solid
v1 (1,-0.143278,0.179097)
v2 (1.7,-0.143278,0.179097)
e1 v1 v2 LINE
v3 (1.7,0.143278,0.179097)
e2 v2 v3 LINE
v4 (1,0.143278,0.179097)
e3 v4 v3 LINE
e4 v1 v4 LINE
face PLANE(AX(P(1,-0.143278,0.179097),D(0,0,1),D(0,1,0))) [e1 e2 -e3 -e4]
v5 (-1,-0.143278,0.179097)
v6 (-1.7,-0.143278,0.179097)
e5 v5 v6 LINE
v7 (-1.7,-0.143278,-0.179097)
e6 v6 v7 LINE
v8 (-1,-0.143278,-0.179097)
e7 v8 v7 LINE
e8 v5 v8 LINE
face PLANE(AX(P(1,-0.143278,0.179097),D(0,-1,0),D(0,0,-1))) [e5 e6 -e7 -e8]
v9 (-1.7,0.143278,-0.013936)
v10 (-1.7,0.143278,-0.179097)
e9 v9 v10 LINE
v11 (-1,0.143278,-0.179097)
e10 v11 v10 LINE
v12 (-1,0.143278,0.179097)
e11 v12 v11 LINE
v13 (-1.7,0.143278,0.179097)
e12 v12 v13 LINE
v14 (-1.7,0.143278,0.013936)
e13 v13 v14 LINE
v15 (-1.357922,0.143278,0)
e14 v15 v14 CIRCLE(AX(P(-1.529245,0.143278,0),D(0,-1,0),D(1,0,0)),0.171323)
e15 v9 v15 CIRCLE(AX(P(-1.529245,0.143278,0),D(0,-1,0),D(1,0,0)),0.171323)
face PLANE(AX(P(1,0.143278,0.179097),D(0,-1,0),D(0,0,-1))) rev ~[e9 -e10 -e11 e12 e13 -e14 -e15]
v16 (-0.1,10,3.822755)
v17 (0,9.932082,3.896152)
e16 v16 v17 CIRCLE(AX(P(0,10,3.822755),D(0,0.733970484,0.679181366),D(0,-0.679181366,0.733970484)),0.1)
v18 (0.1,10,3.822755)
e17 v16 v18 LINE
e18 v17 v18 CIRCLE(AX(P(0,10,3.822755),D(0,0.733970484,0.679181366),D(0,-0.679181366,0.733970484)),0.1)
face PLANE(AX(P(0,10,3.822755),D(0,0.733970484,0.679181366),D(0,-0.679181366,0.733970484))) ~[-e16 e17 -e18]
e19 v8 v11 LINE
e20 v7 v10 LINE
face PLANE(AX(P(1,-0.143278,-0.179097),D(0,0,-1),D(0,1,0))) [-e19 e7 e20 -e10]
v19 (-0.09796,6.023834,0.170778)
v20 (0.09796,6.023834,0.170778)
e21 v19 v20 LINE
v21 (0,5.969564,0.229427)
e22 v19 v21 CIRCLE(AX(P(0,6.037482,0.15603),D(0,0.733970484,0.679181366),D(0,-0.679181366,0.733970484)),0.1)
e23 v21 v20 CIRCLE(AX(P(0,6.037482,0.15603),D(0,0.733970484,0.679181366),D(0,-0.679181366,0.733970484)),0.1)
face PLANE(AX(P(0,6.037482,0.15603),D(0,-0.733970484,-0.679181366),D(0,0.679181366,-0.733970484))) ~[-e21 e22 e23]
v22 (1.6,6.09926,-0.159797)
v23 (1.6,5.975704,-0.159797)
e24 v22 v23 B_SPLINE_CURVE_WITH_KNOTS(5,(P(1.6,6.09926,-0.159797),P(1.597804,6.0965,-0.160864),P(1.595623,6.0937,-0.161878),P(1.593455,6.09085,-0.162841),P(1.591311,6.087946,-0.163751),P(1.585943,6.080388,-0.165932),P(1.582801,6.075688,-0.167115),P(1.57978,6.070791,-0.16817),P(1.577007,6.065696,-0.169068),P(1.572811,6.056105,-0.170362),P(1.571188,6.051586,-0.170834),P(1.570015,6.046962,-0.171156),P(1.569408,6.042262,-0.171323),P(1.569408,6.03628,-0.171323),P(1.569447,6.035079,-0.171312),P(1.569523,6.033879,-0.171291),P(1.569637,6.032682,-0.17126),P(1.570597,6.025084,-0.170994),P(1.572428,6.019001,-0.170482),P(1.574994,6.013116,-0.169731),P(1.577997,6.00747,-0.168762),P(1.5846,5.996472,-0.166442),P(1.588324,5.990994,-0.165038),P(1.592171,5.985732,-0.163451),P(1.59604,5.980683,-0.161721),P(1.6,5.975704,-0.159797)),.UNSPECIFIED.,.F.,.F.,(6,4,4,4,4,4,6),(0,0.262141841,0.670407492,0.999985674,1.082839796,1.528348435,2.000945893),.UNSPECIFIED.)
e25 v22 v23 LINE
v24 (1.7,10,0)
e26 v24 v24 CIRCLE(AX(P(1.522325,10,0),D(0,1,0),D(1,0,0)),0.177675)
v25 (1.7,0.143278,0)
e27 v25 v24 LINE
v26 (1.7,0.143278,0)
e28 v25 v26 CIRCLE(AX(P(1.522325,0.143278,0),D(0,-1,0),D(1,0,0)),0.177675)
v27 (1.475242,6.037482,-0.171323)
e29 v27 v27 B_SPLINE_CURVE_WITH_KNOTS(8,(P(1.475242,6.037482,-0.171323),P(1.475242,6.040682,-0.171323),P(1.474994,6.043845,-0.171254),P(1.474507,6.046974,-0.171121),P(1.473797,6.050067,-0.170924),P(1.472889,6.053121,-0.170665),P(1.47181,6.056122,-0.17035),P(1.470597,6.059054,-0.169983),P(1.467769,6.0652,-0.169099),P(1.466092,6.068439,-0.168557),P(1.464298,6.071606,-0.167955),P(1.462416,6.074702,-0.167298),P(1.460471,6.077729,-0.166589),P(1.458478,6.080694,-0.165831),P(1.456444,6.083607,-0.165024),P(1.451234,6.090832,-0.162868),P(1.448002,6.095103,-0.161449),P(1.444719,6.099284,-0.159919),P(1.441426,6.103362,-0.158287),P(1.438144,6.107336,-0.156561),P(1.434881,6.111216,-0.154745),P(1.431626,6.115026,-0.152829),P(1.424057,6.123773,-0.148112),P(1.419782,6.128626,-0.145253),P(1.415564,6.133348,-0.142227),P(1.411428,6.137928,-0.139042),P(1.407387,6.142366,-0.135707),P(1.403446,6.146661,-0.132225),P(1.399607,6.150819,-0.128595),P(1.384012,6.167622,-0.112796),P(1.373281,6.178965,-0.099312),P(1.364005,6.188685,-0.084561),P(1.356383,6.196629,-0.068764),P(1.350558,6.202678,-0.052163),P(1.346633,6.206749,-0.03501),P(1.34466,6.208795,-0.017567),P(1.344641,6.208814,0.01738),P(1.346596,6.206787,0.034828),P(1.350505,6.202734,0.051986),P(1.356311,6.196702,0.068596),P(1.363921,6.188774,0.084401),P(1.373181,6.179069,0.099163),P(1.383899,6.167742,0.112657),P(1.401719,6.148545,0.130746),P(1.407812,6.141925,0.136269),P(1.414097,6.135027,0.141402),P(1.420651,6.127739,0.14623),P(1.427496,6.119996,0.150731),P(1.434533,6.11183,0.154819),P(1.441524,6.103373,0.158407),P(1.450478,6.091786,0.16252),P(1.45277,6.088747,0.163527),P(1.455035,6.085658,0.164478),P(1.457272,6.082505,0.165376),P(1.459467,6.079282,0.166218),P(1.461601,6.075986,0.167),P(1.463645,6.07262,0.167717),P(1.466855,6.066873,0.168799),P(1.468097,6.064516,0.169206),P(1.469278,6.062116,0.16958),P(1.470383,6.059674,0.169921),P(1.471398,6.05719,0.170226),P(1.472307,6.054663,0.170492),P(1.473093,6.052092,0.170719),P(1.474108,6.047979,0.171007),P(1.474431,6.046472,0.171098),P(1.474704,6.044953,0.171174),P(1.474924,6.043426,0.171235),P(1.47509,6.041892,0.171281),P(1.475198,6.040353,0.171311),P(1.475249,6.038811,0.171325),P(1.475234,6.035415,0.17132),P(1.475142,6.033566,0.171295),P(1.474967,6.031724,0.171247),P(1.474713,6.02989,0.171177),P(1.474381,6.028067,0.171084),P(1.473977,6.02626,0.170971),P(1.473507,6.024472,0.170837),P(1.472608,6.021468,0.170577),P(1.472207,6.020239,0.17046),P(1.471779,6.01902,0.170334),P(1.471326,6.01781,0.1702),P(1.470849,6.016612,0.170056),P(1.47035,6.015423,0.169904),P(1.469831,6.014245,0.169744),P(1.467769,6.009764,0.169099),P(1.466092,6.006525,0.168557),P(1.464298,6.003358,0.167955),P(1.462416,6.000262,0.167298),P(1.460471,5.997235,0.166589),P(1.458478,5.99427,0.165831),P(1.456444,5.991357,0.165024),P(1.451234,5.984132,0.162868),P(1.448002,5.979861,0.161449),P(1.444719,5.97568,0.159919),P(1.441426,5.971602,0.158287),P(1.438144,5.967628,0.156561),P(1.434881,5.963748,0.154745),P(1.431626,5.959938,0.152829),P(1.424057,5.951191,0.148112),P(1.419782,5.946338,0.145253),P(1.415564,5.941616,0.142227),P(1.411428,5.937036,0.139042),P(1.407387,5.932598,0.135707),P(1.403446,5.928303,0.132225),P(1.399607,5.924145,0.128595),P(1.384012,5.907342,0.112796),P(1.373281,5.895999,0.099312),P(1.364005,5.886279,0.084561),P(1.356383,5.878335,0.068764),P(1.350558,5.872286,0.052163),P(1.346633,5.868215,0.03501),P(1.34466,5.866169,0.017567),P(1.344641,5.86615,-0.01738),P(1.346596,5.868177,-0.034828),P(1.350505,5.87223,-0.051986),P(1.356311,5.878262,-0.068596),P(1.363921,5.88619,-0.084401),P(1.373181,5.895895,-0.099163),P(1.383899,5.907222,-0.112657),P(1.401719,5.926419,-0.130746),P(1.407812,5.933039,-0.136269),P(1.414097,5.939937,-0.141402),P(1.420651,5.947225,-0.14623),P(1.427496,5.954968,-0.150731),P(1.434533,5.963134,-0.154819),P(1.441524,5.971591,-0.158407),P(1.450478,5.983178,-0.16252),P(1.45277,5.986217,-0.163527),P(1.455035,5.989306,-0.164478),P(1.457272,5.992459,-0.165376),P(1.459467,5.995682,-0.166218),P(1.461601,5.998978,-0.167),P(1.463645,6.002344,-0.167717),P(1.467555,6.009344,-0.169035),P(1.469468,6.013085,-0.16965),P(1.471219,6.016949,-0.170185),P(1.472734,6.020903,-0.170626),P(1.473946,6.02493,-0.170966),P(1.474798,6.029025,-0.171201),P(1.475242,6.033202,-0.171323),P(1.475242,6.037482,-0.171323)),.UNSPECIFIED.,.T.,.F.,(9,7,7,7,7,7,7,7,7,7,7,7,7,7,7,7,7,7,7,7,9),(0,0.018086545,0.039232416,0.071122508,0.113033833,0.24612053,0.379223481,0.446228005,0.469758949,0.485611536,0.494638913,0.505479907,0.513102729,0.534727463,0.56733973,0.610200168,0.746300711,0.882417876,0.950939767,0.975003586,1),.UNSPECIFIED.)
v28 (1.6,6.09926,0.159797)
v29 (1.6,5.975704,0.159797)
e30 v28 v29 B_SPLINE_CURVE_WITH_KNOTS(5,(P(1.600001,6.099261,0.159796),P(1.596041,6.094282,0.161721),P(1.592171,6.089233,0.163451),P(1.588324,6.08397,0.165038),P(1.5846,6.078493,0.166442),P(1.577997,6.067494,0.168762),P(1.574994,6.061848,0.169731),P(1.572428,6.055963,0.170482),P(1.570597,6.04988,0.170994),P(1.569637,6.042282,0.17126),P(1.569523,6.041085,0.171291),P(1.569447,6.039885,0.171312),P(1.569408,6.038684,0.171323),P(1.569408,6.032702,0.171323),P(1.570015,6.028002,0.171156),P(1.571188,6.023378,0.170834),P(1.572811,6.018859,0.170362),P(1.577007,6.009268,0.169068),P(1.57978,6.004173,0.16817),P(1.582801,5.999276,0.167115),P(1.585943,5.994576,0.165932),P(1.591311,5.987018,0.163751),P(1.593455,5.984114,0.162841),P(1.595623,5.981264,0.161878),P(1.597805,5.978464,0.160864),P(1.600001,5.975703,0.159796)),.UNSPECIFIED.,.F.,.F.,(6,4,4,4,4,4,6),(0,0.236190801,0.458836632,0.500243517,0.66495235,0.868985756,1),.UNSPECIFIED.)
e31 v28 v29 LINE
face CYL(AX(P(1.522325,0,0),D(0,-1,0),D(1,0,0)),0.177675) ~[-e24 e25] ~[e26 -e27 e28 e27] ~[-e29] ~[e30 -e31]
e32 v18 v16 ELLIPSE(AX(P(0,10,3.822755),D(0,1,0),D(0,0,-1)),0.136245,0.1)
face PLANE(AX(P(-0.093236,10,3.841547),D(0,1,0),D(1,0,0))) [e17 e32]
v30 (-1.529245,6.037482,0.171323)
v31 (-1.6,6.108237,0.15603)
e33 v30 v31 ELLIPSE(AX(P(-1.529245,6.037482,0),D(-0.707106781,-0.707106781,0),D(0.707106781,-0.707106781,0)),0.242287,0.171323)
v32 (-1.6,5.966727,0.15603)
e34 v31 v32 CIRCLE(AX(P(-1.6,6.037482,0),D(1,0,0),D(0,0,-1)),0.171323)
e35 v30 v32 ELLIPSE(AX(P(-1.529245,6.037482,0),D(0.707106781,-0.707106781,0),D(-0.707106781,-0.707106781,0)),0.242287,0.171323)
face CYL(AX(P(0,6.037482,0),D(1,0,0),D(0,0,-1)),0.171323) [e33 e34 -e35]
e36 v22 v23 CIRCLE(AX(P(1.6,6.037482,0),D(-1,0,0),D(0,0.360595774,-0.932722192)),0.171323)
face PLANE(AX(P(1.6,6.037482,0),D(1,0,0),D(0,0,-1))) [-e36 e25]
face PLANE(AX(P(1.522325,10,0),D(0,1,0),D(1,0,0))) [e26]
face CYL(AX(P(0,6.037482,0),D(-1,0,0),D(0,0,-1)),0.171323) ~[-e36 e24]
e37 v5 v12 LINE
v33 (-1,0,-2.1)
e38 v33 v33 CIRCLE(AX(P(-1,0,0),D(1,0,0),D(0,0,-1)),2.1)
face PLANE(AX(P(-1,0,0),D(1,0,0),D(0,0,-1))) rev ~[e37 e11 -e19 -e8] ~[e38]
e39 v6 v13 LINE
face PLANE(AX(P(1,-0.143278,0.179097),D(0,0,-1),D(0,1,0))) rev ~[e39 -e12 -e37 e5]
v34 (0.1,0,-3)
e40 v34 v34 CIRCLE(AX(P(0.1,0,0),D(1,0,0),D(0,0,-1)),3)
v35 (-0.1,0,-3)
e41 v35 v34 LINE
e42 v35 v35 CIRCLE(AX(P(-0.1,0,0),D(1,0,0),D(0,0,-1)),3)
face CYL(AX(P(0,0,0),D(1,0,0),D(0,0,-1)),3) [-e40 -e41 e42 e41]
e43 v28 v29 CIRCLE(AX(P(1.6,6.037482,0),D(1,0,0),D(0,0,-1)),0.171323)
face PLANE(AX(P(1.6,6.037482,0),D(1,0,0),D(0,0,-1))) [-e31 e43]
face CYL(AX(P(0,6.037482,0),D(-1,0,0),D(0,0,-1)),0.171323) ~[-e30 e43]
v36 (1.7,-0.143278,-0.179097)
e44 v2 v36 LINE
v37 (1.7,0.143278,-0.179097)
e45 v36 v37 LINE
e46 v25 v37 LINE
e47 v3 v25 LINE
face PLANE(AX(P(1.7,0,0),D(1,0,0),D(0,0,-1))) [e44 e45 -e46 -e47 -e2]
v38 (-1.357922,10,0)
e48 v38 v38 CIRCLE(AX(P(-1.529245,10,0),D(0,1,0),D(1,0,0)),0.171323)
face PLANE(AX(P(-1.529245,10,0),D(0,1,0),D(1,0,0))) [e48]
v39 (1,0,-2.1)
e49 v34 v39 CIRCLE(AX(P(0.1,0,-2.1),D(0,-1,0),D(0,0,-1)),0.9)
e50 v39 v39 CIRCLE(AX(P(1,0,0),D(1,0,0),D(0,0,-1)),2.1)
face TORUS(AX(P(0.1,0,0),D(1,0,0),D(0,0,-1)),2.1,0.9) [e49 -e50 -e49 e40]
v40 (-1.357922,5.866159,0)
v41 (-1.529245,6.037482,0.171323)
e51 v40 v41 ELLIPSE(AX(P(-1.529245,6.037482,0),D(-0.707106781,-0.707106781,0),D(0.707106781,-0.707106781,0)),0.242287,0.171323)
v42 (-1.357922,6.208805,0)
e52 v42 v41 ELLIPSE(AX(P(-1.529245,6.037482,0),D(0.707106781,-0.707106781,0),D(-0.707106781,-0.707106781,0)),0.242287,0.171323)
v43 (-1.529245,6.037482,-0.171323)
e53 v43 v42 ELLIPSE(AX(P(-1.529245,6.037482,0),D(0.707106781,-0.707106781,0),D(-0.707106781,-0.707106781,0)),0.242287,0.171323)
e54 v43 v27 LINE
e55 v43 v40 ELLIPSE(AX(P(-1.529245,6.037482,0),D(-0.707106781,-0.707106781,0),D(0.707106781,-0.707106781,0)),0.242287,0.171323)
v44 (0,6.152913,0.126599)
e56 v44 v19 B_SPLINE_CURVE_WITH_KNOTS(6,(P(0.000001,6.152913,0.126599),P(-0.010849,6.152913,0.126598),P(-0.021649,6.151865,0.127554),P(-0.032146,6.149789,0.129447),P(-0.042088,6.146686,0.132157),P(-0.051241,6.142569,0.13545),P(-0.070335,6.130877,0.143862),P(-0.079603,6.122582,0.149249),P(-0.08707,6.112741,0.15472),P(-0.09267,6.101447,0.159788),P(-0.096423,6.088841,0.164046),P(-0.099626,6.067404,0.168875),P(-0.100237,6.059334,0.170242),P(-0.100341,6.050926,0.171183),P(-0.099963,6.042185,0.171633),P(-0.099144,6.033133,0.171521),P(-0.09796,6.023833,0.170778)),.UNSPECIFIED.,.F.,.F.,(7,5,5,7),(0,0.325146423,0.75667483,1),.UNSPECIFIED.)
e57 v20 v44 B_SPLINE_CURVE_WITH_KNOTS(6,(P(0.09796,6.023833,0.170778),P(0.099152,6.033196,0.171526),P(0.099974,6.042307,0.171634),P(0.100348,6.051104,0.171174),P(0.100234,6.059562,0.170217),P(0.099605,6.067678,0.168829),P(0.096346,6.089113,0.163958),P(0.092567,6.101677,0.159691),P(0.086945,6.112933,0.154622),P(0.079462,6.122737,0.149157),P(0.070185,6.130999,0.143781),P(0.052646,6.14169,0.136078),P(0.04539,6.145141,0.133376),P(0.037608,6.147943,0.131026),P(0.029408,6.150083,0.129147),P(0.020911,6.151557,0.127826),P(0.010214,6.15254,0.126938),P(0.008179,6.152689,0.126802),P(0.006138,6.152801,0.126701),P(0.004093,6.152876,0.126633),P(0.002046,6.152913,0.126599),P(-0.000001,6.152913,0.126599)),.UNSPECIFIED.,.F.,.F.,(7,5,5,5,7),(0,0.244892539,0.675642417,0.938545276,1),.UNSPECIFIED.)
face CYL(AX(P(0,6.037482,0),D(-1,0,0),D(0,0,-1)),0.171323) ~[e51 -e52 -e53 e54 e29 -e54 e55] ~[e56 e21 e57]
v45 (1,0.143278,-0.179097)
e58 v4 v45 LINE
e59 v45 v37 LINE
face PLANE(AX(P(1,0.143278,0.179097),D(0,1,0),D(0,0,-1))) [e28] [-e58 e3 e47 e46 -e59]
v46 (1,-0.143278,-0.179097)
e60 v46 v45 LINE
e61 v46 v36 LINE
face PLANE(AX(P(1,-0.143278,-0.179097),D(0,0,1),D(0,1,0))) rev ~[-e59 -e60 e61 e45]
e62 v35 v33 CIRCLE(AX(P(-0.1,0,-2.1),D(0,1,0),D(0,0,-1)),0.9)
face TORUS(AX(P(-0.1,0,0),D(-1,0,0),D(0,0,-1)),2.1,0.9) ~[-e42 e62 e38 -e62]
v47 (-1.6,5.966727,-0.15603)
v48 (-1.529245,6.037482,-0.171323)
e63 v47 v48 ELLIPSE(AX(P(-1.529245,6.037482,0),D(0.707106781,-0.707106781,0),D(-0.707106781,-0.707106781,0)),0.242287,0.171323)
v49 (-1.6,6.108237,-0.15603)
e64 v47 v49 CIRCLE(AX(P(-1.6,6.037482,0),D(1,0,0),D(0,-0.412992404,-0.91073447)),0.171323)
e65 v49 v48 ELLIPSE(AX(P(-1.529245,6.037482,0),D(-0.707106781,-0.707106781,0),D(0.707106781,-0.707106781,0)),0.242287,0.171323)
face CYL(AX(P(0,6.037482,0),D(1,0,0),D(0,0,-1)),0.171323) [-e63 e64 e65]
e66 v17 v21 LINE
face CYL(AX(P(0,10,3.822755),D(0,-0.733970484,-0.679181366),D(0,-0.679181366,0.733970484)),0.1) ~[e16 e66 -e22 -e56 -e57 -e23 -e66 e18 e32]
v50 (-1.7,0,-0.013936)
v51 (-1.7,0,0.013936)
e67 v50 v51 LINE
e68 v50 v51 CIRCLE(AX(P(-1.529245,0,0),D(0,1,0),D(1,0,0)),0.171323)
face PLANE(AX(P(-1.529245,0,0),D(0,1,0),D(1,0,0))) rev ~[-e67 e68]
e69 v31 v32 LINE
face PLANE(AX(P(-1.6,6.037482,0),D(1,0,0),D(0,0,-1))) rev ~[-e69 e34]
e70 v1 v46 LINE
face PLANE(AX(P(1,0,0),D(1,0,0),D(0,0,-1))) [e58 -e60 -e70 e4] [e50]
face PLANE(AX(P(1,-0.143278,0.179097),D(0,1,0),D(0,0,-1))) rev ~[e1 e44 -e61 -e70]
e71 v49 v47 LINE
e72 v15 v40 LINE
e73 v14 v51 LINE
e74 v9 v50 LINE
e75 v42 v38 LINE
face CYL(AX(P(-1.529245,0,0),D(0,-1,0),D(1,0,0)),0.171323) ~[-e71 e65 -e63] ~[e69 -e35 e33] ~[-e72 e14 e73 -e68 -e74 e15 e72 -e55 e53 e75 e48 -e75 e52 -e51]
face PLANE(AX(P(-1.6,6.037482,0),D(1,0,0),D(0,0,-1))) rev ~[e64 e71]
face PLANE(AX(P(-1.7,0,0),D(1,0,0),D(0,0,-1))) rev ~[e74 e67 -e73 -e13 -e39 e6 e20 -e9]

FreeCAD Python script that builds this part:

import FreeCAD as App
import Part
import Sketcher

V = App.Vector
Q = App.Units.Quantity


def edges_at(feature, points):
    """Names of the edges that pass closest to the given points."""
    edges = feature.Shape.Edges
    near = lambda p: min(range(len(edges)), key=lambda i: edges[i].distToShape(Part.Vertex(*p))[0])
    return sorted({f"Edge{near(p) + 1}" for p in points})


def add_polygon(sketch, points):
    """Adds a closed chain of lines whose ends are joined by coincident constraints."""
    first, n = sketch.GeometryCount, len(points)
    for a, b in zip(points, points[1:] + points[:1]):
        sketch.addGeometry(Part.LineSegment(App.Vector(*a, 0), App.Vector(*b, 0)), False)
    for i in range(n):
        sketch.addConstraint(Sketcher.Constraint("Coincident", first + i, 2, first + (i + 1) % n, 1))

doc = App.newDocument("Part")
body = doc.addObject("PartDesign::Body", "Body")

sketch1 = body.newObject("Sketcher::SketchObject", "Sketch")
sketch1.AttachmentSupport = (doc.getObject("YZ_Plane"), [""])
sketch1.MapMode = "FlatFace"
sketch1.addGeometry(Part.Circle(V(0, 0, 0), V(0, 0, 1), 3), False)
sketch1.addConstraint([
    Sketcher.Constraint("Coincident", 0, 3, -1, 1),
    Sketcher.Constraint("Diameter", 0, Q("6 mm")),
])
pad1 = body.newObject("PartDesign::Pad", "Pad")
pad1.Profile = sketch1
pad1.Type = "TwoLengths"
pad1.Length = 1
pad1.Length2 = 1
doc.recompute()

fillet = body.newObject("PartDesign::Fillet", "Fillet")
fillet.Base = (pad1, edges_at(pad1, [(-1, 0, 3)]))
fillet.Radius = 0.9
doc.recompute()

fillet2 = body.newObject("PartDesign::Fillet", "Fillet001")
fillet2.Base = (fillet, edges_at(fillet, [(1, 0, 3)]))
fillet2.Radius = 0.9

sketch2 = body.newObject("Sketcher::SketchObject", "Sketch001")
sketch2.AttachmentSupport = (doc.getObject("YZ_Plane"), [""])
sketch2.MapMode = "FlatFace"
sketch2.AttachmentOffset = App.Placement(V(0, 0, 1), App.Rotation())
add_polygon(sketch2, [(0.14, 0.18), (-0.14, 0.18), (-0.14, -0.18), (0.14, -0.18)])
sketch2.addConstraint([
    Sketcher.Constraint("Horizontal", 0),
    Sketcher.Constraint("Vertical", 1),
    Sketcher.Constraint("Horizontal", 2),
    Sketcher.Constraint("Vertical", 3),
    Sketcher.Constraint("Symmetric", 0, 2, 2, 2, -1, 1),
    Sketcher.Constraint("DistanceX", 0, 2, 0, 1, Q("0.286555 mm")),
    Sketcher.Constraint("DistanceY", 1, 2, 1, 1, Q("0.358194 mm")),
])
pad2 = body.newObject("PartDesign::Pad", "Pad001")
pad2.Profile = sketch2
pad2.Type = "TwoLengths"
pad2.Length = 0.7
pad2.Length2 = 2.7

sketch3 = body.newObject("Sketcher::SketchObject", "Sketch002")
sketch3.AttachmentSupport = (doc.getObject("XZ_Plane"), [""])
sketch3.MapMode = "FlatFace"
sketch3.addGeometry([
    Part.Circle(V(-1.53, 0, 0), V(0, 0, 1), 0.17),
    Part.Circle(V(1.52, 0, 0), V(0, 0, 1), 0.18),
], False)
sketch3.addConstraint([
    Sketcher.Constraint("PointOnObject", 0, 3, -1),
    Sketcher.Constraint("PointOnObject", 1, 3, -1),
    Sketcher.Constraint("Diameter", 1, Q("0.355349 mm")),
    Sketcher.Constraint("Diameter", 0, Q("0.342645 mm")),
    Sketcher.Constraint("DistanceX", 0, 3, 1, 3, Q("3.05157 mm")),
    Sketcher.Constraint("DistanceX", 0, 3, -1, 1, Q("1.529245 mm")),
])
pad3 = body.newObject("PartDesign::Pad", "Pad002")
pad3.Profile = sketch3
pad3.Length = 10
pad3.Reversed = True

sketch4 = body.newObject("Sketcher::SketchObject", "Sketch003")
sketch4.AttachmentSupport = (doc.getObject("YZ_Plane"), [""])
sketch4.MapMode = "FlatFace"
sketch4.addGeometry(Part.Circle(V(6.04, 0, 0), V(0, 0, 1), 0.17), False)
sketch4.addConstraint([
    Sketcher.Constraint("PointOnObject", 0, 3, -1),
    Sketcher.Constraint("Diameter", 0, Q("0.342645 mm")),
    Sketcher.Constraint("DistanceX", -1, 1, 0, 3, Q("6.037482 mm")),
])
pad4 = body.newObject("PartDesign::Pad", "Pad003")
pad4.Profile = sketch4
pad4.Type = "TwoLengths"
pad4.Length = 1.6
pad4.Length2 = 1.6

sketch5 = body.newObject("Sketcher::SketchObject", "Sketch004")
sketch5.AttachmentSupport = (doc.getObject("YZ_Plane"), [""])
sketch5.MapMode = "FlatFace"
add_polygon(sketch5, [(6.04, 0.16), (10, 3.82), (9.93, 3.9), (5.97, 0.23)])
sketch5.addGeometry(Part.LineSegment(V(6.04, 0.16, 0), V(10, 3.82, 0)), True)
sketch5.addConstraint([
    Sketcher.Constraint("Coincident", 4, 1, 3, 2),
    Sketcher.Constraint("Coincident", 4, 2, 0, 2),
    Sketcher.Constraint("Perpendicular", 0, 1),
    Sketcher.Constraint("Perpendicular", 1, 2),
    Sketcher.Constraint("Perpendicular", 2, 3),
    Sketcher.Constraint("DistanceX", -1, 1, 0, 2, Q("10 mm")),
    Sketcher.Constraint("Distance", 1, Q("0.1 mm")),
    Sketcher.Constraint("DistanceX", 3, 2, 1, 2, Q("3.8946 mm")),
    Sketcher.Constraint("DistanceX", -1, 1, 1, 2, Q("9.932082 mm")),
    Sketcher.Constraint("DistanceY", -1, 1, 3, 2, Q("0.15603 mm")),
])
revolution = body.newObject("PartDesign::Revolution", "Revolution")
revolution.Profile = sketch5
revolution.ReferenceAxis = (sketch5, ["Axis0"])
revolution.Angle = 360

sketch6 = body.newObject("Sketcher::SketchObject", "Sketch005")
sketch6.AttachmentSupport = (doc.getObject("XZ_Plane"), [""])
sketch6.MapMode = "FlatFace"
sketch6.AttachmentOffset = App.Placement(V(0, 0, -10), App.Rotation())
add_polygon(sketch6, [(-0.4, 3.3), (-0.4, 4.4), (0.2, 4.4), (0.2, 3.3)])
sketch6.addConstraint([
    Sketcher.Constraint("Vertical", 0),
    Sketcher.Constraint("Horizontal", 1),
    Sketcher.Constraint("Vertical", 2),
    Sketcher.Constraint("Horizontal", 3),
    Sketcher.Constraint("DistanceY", -1, 1, 0, 2, Q("4.384499 mm")),
    Sketcher.Constraint("DistanceX", 1, 1, 1, 2, Q("0.589493 mm")),
    Sketcher.Constraint("DistanceY", 0, 1, 0, 2, Q("1.085905 mm")),
    Sketcher.Constraint("DistanceX", -1, 1, 1, 2, Q("0.201511 mm")),
])
pocket1 = body.newObject("PartDesign::Pocket", "Pocket")
pocket1.Profile = sketch6
pocket1.Length = 1.6

doc.recompute()
